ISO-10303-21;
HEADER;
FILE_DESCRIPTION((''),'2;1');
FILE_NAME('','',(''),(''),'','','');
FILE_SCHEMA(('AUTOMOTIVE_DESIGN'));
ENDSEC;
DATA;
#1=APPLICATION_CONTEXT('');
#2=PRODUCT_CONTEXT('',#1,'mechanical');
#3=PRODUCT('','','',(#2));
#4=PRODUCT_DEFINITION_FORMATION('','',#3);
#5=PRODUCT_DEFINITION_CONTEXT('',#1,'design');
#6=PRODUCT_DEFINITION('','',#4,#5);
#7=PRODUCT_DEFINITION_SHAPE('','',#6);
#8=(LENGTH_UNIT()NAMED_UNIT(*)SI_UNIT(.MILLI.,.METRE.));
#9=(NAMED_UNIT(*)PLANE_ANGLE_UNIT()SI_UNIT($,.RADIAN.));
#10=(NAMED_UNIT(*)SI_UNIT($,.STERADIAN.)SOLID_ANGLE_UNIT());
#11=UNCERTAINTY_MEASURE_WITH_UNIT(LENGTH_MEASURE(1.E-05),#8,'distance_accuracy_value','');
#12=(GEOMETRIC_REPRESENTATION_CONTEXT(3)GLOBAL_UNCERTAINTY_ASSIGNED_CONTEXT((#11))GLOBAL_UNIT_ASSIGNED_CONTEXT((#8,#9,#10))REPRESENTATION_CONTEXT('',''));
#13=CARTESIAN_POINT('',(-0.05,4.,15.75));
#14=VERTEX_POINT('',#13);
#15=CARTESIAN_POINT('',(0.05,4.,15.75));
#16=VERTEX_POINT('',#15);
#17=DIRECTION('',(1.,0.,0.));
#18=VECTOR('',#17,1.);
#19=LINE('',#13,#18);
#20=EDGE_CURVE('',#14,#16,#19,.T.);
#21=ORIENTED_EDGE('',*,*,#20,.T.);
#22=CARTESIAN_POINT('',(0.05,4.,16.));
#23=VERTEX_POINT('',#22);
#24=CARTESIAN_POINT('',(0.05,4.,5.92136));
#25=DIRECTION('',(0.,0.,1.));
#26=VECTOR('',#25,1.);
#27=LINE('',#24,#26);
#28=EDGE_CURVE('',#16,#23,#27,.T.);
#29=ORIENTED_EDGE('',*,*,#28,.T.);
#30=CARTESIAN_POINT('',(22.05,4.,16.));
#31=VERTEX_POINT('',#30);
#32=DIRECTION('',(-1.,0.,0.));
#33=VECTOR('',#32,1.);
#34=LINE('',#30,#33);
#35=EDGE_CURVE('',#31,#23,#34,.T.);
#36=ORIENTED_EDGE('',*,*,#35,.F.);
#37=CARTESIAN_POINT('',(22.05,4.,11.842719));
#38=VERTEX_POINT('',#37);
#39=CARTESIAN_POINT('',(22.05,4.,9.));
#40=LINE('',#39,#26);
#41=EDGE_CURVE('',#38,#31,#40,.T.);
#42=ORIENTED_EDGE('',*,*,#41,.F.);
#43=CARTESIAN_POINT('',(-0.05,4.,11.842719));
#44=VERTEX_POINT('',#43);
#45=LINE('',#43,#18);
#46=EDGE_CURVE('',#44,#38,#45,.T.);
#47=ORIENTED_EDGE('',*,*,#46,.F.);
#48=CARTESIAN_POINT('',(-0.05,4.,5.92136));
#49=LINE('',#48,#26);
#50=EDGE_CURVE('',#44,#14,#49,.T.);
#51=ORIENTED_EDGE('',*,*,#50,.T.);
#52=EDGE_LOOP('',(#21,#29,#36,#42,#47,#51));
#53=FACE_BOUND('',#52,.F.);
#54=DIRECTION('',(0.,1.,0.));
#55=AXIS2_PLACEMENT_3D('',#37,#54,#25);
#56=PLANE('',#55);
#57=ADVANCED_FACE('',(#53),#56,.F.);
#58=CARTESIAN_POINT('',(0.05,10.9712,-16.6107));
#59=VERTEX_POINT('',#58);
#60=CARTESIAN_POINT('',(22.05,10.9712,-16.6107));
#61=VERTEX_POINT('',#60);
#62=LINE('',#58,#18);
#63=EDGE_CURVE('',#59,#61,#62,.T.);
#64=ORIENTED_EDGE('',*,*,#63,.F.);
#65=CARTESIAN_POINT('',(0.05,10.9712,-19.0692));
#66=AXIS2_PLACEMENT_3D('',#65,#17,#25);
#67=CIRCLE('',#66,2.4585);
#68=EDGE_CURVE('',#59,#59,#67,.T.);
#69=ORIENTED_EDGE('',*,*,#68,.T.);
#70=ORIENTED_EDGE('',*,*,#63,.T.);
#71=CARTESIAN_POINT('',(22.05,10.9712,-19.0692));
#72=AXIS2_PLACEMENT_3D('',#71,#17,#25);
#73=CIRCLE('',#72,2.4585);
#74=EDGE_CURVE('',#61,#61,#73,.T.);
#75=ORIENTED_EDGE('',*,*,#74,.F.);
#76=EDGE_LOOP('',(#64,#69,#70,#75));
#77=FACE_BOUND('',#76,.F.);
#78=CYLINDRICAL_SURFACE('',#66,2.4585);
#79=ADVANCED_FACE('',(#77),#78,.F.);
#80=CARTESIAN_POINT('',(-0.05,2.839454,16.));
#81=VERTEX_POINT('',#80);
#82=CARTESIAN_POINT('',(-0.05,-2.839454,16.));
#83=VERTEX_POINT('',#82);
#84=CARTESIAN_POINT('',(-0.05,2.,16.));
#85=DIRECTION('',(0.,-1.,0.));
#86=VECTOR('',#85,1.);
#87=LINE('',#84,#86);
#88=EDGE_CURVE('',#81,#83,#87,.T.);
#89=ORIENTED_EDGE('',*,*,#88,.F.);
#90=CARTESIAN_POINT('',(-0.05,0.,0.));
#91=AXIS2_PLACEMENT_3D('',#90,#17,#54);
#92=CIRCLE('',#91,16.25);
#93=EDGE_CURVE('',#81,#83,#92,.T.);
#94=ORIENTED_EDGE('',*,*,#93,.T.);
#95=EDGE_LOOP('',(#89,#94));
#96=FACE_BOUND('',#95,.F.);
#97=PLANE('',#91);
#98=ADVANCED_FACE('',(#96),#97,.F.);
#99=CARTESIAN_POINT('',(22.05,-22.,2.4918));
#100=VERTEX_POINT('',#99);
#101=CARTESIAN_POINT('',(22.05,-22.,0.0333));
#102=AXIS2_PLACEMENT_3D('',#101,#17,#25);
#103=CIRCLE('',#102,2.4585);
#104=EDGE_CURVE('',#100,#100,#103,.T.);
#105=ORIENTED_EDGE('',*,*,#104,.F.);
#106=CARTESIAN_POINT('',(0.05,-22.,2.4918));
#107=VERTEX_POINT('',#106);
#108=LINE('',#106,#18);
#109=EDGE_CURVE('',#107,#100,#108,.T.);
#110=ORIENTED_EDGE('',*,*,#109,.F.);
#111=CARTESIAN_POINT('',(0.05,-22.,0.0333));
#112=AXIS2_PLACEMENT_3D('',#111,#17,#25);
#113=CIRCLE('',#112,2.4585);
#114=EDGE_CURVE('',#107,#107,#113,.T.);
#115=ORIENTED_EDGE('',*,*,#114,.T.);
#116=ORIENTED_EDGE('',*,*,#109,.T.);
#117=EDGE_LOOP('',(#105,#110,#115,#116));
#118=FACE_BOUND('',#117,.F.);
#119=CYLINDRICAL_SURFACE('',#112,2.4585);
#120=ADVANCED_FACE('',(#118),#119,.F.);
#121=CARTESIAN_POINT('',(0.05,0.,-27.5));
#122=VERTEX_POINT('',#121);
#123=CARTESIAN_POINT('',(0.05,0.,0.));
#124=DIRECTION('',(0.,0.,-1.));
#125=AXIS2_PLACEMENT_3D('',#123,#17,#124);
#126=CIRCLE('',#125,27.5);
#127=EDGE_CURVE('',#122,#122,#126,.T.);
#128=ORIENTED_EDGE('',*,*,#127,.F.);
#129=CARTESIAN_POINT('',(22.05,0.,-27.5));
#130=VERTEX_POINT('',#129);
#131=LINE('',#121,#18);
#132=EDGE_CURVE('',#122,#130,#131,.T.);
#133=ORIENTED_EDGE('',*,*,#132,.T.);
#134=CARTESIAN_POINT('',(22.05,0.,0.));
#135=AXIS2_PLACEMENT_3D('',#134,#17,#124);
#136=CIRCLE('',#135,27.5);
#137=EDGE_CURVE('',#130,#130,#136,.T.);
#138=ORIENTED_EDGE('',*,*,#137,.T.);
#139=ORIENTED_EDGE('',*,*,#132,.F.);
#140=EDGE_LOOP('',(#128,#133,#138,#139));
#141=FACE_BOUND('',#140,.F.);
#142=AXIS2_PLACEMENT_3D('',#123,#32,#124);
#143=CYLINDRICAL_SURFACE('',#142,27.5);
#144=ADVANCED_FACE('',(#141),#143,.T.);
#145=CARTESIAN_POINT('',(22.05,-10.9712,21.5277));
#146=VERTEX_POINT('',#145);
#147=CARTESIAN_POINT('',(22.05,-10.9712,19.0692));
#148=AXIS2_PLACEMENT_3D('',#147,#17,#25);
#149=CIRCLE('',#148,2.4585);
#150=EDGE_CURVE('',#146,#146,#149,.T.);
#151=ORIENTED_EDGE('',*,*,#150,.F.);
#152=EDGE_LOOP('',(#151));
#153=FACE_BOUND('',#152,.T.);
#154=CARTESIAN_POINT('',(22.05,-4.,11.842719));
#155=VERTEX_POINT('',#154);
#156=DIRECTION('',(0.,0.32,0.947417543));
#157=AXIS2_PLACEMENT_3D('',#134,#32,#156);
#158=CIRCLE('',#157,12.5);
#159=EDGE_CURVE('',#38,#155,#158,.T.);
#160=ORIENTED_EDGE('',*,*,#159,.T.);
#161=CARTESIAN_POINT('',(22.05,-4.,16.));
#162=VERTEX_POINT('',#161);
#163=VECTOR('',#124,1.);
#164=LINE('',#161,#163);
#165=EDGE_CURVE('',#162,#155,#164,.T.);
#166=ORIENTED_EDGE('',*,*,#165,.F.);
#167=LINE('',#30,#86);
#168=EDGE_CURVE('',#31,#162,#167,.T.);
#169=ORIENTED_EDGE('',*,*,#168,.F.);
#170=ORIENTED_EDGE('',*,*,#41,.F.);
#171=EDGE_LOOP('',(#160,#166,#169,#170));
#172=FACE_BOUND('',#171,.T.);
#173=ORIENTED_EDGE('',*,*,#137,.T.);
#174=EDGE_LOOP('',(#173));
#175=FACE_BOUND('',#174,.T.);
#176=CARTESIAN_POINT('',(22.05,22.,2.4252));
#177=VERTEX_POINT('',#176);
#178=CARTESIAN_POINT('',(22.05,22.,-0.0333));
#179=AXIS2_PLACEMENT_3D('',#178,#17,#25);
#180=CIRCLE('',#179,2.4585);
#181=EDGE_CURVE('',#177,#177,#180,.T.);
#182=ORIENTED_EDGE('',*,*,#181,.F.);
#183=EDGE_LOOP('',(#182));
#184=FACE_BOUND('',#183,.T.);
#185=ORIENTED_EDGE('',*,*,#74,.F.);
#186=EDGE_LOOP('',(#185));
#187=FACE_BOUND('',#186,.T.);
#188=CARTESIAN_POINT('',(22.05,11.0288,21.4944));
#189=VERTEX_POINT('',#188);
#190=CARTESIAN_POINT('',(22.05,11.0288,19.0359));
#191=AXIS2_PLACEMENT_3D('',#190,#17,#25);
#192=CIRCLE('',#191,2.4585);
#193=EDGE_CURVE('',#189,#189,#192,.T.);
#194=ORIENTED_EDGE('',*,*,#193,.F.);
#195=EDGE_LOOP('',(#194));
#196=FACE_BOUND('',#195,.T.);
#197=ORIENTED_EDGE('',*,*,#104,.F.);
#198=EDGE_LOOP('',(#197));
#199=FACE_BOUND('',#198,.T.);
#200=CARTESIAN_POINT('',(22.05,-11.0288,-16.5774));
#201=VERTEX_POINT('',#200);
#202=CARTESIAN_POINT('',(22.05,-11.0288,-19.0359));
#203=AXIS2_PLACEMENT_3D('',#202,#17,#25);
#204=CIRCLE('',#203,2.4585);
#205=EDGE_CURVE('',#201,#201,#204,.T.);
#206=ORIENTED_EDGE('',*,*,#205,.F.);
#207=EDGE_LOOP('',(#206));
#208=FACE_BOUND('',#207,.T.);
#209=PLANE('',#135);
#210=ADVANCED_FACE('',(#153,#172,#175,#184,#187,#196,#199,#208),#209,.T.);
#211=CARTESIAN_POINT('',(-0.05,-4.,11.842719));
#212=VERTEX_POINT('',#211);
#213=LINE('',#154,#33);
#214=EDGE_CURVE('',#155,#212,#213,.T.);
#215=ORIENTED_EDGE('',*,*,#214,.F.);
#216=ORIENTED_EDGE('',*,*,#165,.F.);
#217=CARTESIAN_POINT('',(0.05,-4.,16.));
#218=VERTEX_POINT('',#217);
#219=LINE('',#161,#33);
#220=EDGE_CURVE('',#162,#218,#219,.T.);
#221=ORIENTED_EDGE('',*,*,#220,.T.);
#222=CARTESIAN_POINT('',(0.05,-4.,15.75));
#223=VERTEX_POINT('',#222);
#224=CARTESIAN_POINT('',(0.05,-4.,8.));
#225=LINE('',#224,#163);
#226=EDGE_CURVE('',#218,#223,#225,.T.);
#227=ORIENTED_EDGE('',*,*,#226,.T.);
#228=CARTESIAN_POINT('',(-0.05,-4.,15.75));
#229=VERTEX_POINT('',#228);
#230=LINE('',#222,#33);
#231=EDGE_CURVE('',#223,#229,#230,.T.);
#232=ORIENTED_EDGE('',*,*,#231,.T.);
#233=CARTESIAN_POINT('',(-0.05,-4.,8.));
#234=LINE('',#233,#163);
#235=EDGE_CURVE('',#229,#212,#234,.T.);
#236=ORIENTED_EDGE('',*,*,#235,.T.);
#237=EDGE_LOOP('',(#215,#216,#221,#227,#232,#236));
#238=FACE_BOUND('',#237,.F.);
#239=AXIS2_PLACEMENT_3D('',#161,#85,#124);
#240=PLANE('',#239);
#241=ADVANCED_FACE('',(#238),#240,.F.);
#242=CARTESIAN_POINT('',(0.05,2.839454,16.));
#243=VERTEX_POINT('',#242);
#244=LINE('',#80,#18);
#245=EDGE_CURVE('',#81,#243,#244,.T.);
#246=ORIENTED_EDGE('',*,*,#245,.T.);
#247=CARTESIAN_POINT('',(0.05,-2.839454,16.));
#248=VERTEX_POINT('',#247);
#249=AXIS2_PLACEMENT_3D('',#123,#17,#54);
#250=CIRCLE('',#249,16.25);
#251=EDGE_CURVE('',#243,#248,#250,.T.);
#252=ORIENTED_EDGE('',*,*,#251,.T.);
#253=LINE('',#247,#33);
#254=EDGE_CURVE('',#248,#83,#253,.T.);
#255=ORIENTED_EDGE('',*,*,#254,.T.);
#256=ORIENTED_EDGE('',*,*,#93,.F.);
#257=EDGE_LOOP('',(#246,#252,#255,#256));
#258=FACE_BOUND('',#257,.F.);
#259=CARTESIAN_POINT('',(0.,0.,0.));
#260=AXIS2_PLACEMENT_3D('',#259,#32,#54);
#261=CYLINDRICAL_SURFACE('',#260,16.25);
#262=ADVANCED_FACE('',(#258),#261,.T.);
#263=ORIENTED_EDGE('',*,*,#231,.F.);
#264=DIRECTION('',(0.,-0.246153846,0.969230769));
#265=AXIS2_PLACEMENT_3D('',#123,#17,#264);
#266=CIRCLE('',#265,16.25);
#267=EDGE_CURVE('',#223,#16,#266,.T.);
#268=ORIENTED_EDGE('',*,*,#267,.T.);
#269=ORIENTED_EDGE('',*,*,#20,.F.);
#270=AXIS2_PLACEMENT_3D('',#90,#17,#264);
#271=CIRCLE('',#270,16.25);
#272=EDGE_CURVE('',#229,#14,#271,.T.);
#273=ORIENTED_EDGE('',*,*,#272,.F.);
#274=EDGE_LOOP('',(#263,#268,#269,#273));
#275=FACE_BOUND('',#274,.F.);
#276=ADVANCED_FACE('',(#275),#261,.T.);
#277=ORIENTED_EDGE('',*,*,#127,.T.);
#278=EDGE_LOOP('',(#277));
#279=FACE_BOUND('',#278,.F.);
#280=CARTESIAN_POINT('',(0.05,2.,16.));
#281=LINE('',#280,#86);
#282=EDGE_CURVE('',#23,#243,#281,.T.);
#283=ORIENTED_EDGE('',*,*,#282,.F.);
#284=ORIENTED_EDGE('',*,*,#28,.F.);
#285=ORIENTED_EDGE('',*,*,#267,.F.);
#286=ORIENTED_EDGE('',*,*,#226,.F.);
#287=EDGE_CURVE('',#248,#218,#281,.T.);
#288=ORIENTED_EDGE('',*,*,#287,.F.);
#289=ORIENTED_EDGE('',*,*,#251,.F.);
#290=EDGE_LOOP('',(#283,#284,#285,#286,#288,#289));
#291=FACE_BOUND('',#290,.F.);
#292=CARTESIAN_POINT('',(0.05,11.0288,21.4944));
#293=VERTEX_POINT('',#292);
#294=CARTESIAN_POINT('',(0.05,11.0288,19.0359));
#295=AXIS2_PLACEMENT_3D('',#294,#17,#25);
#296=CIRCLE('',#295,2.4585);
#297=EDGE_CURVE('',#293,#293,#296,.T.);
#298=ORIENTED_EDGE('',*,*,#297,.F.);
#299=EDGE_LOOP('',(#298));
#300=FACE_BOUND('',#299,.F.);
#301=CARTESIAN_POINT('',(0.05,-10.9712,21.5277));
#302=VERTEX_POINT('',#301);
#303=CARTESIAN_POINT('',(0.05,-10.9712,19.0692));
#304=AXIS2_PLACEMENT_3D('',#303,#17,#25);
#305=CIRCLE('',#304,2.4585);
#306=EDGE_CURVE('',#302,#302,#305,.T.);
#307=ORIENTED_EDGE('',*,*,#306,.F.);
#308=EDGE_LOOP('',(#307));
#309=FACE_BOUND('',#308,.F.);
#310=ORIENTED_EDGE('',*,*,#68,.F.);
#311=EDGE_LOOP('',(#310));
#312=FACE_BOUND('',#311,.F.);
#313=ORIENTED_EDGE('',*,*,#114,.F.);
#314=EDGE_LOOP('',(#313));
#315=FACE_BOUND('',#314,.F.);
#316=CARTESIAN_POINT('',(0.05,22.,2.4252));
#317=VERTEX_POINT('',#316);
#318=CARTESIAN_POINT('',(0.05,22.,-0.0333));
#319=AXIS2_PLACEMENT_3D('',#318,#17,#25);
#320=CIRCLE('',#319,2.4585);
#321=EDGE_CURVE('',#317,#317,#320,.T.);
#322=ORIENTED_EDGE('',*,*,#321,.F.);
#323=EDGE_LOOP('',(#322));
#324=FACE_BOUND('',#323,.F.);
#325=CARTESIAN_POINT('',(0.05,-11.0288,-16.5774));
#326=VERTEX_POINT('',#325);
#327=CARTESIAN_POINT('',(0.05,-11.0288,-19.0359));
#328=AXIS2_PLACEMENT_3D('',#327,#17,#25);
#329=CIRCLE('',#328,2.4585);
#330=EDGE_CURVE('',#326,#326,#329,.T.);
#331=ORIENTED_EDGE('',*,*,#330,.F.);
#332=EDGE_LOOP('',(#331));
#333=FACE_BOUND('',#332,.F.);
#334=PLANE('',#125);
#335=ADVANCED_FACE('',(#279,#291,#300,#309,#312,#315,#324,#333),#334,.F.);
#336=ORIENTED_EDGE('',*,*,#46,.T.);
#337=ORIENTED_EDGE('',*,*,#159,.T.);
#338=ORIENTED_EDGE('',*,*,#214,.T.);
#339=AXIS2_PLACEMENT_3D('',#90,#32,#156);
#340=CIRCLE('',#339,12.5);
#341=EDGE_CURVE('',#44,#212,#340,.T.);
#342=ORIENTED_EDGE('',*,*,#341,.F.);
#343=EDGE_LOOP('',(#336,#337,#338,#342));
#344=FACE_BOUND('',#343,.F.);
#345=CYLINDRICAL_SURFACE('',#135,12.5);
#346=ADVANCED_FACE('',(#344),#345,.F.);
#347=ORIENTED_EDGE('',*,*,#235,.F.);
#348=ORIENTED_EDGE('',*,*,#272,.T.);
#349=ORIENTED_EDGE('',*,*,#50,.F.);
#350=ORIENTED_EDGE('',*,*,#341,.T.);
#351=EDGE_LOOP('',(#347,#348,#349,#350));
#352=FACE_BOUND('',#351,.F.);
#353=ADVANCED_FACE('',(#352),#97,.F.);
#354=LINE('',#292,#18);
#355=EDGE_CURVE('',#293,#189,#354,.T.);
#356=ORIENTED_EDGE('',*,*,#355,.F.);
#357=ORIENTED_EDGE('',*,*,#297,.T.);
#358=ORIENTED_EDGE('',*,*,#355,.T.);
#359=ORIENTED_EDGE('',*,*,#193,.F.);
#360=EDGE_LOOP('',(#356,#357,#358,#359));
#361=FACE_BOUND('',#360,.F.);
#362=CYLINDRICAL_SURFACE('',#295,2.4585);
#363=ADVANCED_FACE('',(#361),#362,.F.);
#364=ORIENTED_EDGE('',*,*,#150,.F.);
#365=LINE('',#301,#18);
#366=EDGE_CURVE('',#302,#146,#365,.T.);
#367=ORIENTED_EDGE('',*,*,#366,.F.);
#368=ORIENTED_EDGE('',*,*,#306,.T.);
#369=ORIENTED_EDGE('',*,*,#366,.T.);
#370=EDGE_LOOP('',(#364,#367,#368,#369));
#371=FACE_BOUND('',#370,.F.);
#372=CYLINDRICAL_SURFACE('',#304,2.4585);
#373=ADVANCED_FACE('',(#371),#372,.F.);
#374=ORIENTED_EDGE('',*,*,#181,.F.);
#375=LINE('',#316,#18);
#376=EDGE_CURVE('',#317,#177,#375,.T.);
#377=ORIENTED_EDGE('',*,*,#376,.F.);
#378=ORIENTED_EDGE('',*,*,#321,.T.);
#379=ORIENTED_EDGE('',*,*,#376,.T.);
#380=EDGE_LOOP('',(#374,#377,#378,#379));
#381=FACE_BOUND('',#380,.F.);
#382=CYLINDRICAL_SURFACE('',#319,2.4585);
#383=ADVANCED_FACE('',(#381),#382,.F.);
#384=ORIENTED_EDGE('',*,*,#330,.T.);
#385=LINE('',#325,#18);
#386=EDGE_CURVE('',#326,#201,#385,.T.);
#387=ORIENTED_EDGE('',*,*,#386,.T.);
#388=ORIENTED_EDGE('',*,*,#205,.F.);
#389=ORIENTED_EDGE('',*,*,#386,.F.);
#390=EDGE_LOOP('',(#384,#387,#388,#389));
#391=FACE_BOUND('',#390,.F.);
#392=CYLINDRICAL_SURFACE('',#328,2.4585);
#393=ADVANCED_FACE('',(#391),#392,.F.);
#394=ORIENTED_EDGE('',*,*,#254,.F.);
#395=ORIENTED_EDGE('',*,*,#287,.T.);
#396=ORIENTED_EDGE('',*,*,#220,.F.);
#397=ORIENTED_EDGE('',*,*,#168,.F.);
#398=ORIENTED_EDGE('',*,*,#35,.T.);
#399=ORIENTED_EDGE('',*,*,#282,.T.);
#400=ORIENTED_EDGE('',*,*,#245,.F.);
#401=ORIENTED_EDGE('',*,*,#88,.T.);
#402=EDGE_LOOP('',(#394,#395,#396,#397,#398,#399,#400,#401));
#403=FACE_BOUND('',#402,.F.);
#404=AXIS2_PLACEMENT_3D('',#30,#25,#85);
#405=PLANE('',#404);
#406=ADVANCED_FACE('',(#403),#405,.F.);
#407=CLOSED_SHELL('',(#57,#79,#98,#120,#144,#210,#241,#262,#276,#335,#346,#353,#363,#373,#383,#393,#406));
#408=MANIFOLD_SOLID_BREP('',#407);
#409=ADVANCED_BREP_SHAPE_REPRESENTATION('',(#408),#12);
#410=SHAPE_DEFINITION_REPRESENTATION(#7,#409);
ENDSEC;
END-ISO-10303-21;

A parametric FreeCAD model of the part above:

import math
import FreeCAD as App
import Part
import Sketcher
from FreeCAD import Vector

doc = App.newDocument("Part")
body = doc.addObject("PartDesign::Body", "Body")

sketch1 = body.newObject("Sketcher::SketchObject", "Sketch")
sketch1.AttachmentSupport = (doc.getObject("YZ_Plane"), [""])
sketch1.MapMode = "FlatFace"
sketch1.addGeometry([
    Part.Circle(Vector(0, 0, 0), Vector(0, 0, 1), 16.25),
    Part.Circle(Vector(0, 0, 0), Vector(0, 0, 1), 12.5),
], False)
sketch1.addConstraint([
    Sketcher.Constraint("Coincident", 0, 3, -1, 1),
    Sketcher.Constraint("Coincident", 1, 3, -1, 1),
    Sketcher.Constraint("Diameter", 1, 25.0),
    Sketcher.Constraint("Diameter", 0, 32.5),
])
pad1 = body.newObject("PartDesign::Pad", "Pad")
pad1.Profile = sketch1
pad1.Length = 0.1
pad1.Midplane = True

sketch2 = body.newObject("Sketcher::SketchObject", "Sketch001")
sketch2.AttachmentSupport = (doc.getObject("YZ_Plane"), [""])
sketch2.MapMode = "FlatFace"
sketch2.AttachmentOffset = App.Placement(Vector(0, 0, 0.05), App.Rotation())
sketch2.addGeometry(Part.Circle(Vector(0, 0, 0), Vector(0, 0, 1), 27.5), False)
sketch2.addConstraint([
    Sketcher.Constraint("Coincident", 0, 3, -1, 1),
    Sketcher.Constraint("Diameter", 0, 55.0),
])
pad2 = body.newObject("PartDesign::Pad", "Pad001")
pad2.Profile = sketch2
pad2.Length = 22

sketch3 = body.newObject("Sketcher::SketchObject", "Sketch002")
sketch3.AttachmentSupport = (doc.getObject("YZ_Plane"), [""])
sketch3.MapMode = "FlatFace"
sketch3.AttachmentOffset = App.Placement(Vector(0, 0, 22.05), App.Rotation())
sketch3.addGeometry(Part.Circle(Vector(0, 0, 0), Vector(0, 0, 1), 12.5), False)
sketch3.addConstraint([
    Sketcher.Constraint("Coincident", 0, 3, -1, 1),
    Sketcher.Constraint("Diameter", 0, 25.0),
])
pocket1 = body.newObject("PartDesign::Pocket", "Pocket")
pocket1.Profile = sketch3
pocket1.Length = 30

sketch4 = body.newObject("Sketcher::SketchObject", "Sketch003")
sketch4.AttachmentSupport = (doc.getObject("YZ_Plane"), [""])
sketch4.MapMode = "FlatFace"
sketch4.AttachmentOffset = App.Placement(Vector(0, 0, 0.05), App.Rotation())
sketch4.addGeometry([
    Part.Circle(Vector(-22, 0.0333, 0), Vector(0, 0, 1), 2.4585),
    Part.Circle(Vector(-10.9712, 19.0692, 0), Vector(0, 0, 1), 2.4585),
    Part.Circle(Vector(11.0288, 19.0359, 0), Vector(0, 0, 1), 2.4585),
    Part.Circle(Vector(22, -0.0333, 0), Vector(0, 0, 1), 2.4585),
    Part.Circle(Vector(10.9712, -19.0692, 0), Vector(0, 0, 1), 2.4585),
    Part.Circle(Vector(-11.0288, -19.0359, 0), Vector(0, 0, 1), 2.4585),
], False)
sketch4.addConstraint([
    Sketcher.Constraint("Equal", 0, 1),
    Sketcher.Constraint("Equal", 1, 2),
    Sketcher.Constraint("Equal", 2, 3),
    Sketcher.Constraint("Equal", 3, 4),
    Sketcher.Constraint("Equal", 4, 5),
    Sketcher.Constraint("Symmetric", 0, 3, 3, 3, -1, 1),
    Sketcher.Constraint("Symmetric", 1, 3, 4, 3, -1, 1),
    Sketcher.Constraint("Symmetric", 2, 3, 5, 3, -1, 1),
    Sketcher.Constraint("Diameter", 0, 4.917),
    Sketcher.Constraint("DistanceX", 0, 3, -1, 1, 22.0),
    Sketcher.Constraint("DistanceX", 1, 3, 2, 3, 22.0),
    Sketcher.Constraint("DistanceY", -1, 1, 2, 3, 19.036),
    Sketcher.Constraint("DistanceY", 0, 3, 1, 3, 19.036),
    Sketcher.Constraint("DistanceY", 4, 3, 2, 3, 38.105),
    Sketcher.Constraint("DistanceX", 1, 3, -1, 1, 10.9712),
])
doc.recompute()
hole = body.newObject("PartDesign::Hole", "Hole")
hole.Profile = sketch4
hole.ThreadType = "None"
hole.Diameter = 4.917
hole.DepthType = "ThroughAll"
hole.Reversed = True

sketch5 = body.newObject("Sketcher::SketchObject", "Sketch004")
sketch5.AttachmentSupport = (doc.getObject("YZ_Plane"), [""])
sketch5.MapMode = "FlatFace"
sketch5.AttachmentOffset = App.Placement(Vector(0, 0, 22.05), App.Rotation())
sketch5.addGeometry([
    Part.LineSegment(Vector(4, 16, 0), Vector(-4, 16, 0)),
    Part.LineSegment(Vector(-4, 16, 0), Vector(-4, 11.842719, 0)),
    Part.ArcOfCircle(Part.Circle(Vector(0, 0, 0), Vector(0, 0, 1), 12.5), math.radians(71.337075), math.radians(108.662925)),
    Part.LineSegment(Vector(4, 11.842719, 0), Vector(4, 16, 0)),
], False)
sketch5.addConstraint([
    Sketcher.Constraint("Coincident", 0, 2, 1, 1),
    Sketcher.Constraint("Coincident", 1, 2, 2, 2),
    Sketcher.Constraint("Coincident", 2, 1, 3, 1),
    Sketcher.Constraint("Coincident", 3, 2, 0, 1),
    Sketcher.Constraint("Horizontal", 0),
    Sketcher.Constraint("Vertical", 1),
    Sketcher.Constraint("Vertical", 3),
    Sketcher.Constraint("Coincident", 2, 3, -1, 1),
    Sketcher.Constraint("Horizontal", 1, 2, 2, 1),
    Sketcher.Constraint("DistanceX", 0, 2, 0, 1, 8.0),
    Sketcher.Constraint("Radius", 2, 12.5),
    Sketcher.Constraint("DistanceY", -1, 1, 0, 2, 16.0),
])
pocket2 = body.newObject("PartDesign::Pocket", "Pocket001")
pocket2.Profile = sketch5
pocket2.Length = 52

doc.recompute()
